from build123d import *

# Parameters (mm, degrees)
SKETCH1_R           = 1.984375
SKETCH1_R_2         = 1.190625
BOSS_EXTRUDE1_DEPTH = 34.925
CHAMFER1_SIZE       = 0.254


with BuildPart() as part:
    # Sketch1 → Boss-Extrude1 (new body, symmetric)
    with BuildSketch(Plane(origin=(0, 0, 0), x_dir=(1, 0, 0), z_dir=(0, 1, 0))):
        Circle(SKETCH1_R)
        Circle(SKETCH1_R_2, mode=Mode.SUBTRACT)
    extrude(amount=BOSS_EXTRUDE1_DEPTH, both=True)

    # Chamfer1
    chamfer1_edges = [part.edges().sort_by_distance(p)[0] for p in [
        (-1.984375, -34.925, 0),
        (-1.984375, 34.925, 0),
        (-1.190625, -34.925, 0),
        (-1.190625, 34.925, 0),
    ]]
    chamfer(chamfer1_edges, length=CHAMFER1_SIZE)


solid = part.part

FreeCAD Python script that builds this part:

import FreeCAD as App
import Part
import Sketcher

V = App.Vector
Q = App.Units.Quantity


def edges_at(feature, points):
    """Names of the edges that pass closest to the given points."""
    edges = feature.Shape.Edges
    near = lambda p: min(range(len(edges)), key=lambda i: edges[i].distToShape(Part.Vertex(*p))[0])
    return sorted({f"Edge{near(p) + 1}" for p in points})

doc = App.newDocument("Part")
body = doc.addObject("PartDesign::Body", "Body")

# Sketch on XZ plane
sketch1 = body.newObject("Sketcher::SketchObject", "Sketch")
sketch1.AttachmentSupport = (doc.getObject("XZ_Plane"), [""])
sketch1.MapMode = "FlatFace"
sketch1.addGeometry([
    Part.Circle(V(0, 0, 0), V(0, 0, 1), 2),
    Part.Circle(V(0, 0, 0), V(0, 0, 1), 1.2),
], False)
sketch1.addConstraint([
    Sketcher.Constraint("Coincident", 0, 3, -1, 1),
    Sketcher.Constraint("Coincident", 1, 3, -1, 1),
    Sketcher.Constraint("Diameter", 0, Q("0.15625 in")),
    Sketcher.Constraint("Diameter", 1, Q("0.09375 in")),
])
pad1 = body.newObject("PartDesign::Pad", "Pad")
pad1.Profile = sketch1
pad1.Length = Q("2.75 in")
pad1.Midplane = True
doc.recompute()

chamfer = body.newObject("PartDesign::Chamfer", "Chamfer")
chamfer.Base = (pad1, edges_at(pad1, [
    (-1.984, -34.925, 0),
    (-1.984, 34.925, 0),
    (-1.191, -34.925, 0),
    (-1.191, 34.925, 0),
]))
chamfer.Size = Q("0.01 in")

doc.recompute()
